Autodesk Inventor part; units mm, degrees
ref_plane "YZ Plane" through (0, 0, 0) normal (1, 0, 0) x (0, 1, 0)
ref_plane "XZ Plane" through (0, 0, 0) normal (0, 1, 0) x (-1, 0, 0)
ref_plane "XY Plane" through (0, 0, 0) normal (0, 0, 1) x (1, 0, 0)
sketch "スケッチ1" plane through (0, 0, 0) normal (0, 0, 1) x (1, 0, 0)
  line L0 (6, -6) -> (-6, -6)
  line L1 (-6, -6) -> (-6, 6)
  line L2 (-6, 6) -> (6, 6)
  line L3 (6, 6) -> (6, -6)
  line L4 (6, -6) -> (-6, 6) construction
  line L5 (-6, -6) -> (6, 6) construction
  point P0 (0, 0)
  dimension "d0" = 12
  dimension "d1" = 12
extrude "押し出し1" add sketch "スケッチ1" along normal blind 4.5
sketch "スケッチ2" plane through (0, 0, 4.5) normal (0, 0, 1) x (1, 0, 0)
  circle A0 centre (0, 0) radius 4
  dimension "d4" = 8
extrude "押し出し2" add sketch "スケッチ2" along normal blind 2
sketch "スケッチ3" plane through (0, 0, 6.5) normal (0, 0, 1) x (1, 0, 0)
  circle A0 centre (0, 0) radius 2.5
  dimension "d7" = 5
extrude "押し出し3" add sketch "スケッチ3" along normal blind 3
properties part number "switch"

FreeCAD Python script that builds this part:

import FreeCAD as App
import Part
import Sketcher


def add_polygon(sketch, points):
    """Adds a closed chain of lines whose ends are joined by coincident constraints."""
    first, n = sketch.GeometryCount, len(points)
    for a, b in zip(points, points[1:] + points[:1]):
        sketch.addGeometry(Part.LineSegment(App.Vector(*a, 0), App.Vector(*b, 0)), False)
    for i in range(n):
        sketch.addConstraint(Sketcher.Constraint("Coincident", first + i, 2, first + (i + 1) % n, 1))

doc = App.newDocument("Part")
body = doc.addObject("PartDesign::Body", "Body")

# Sketch on XY plane
sketch1 = body.newObject("Sketcher::SketchObject", "Sketch")
sketch1.AttachmentSupport = (doc.getObject("XY_Plane"), [""])
sketch1.MapMode = "FlatFace"
add_polygon(sketch1, [(-6, -6), (6, -6), (6, 6), (-6, 6)])  # lines 0-3
sketch1.addConstraint([
    Sketcher.Constraint("Horizontal", 0),
    Sketcher.Constraint("Vertical", 1),
    Sketcher.Constraint("Horizontal", 2),
    Sketcher.Constraint("Vertical", 3),
    Sketcher.Constraint("Symmetric", 0, 2, 2, 2, -1, 1),
    Sketcher.Constraint("Equal", 2, 1),
    Sketcher.Constraint("DistanceX", 0, 1, 0, 2, 12.0),
])
pad1 = body.newObject("PartDesign::Pad", "Pad")
pad1.Profile = sketch1
pad1.Length = 4.5

# Sketch on XY plane
sketch2 = body.newObject("Sketcher::SketchObject", "Sketch001")
sketch2.AttachmentSupport = (doc.getObject("XY_Plane"), [""])
sketch2.MapMode = "FlatFace"
sketch2.AttachmentOffset = App.Placement(App.Vector(0, 0, 4.5), App.Rotation())
sketch2.addGeometry(Part.Circle(App.Vector(0, 0, 0), App.Vector(0, 0, 1), 4), False)
sketch2.addConstraint([
    Sketcher.Constraint("Coincident", 0, 3, -1, 1),
    Sketcher.Constraint("Diameter", 0, 8.0),
])
pad2 = body.newObject("PartDesign::Pad", "Pad001")
pad2.Profile = sketch2
pad2.Length = 2

# Sketch on XY plane
sketch3 = body.newObject("Sketcher::SketchObject", "Sketch002")
sketch3.AttachmentSupport = (doc.getObject("XY_Plane"), [""])
sketch3.MapMode = "FlatFace"
sketch3.AttachmentOffset = App.Placement(App.Vector(0, 0, 6.5), App.Rotation())
sketch3.addGeometry(Part.Circle(App.Vector(0, 0, 0), App.Vector(0, 0, 1), 2.5), False)
sketch3.addConstraint([
    Sketcher.Constraint("Coincident", 0, 3, -1, 1),
    Sketcher.Constraint("Diameter", 0, 5.0),
])
pad3 = body.newObject("PartDesign::Pad", "Pad002")
pad3.Profile = sketch3
pad3.Length = 3

doc.recompute()
